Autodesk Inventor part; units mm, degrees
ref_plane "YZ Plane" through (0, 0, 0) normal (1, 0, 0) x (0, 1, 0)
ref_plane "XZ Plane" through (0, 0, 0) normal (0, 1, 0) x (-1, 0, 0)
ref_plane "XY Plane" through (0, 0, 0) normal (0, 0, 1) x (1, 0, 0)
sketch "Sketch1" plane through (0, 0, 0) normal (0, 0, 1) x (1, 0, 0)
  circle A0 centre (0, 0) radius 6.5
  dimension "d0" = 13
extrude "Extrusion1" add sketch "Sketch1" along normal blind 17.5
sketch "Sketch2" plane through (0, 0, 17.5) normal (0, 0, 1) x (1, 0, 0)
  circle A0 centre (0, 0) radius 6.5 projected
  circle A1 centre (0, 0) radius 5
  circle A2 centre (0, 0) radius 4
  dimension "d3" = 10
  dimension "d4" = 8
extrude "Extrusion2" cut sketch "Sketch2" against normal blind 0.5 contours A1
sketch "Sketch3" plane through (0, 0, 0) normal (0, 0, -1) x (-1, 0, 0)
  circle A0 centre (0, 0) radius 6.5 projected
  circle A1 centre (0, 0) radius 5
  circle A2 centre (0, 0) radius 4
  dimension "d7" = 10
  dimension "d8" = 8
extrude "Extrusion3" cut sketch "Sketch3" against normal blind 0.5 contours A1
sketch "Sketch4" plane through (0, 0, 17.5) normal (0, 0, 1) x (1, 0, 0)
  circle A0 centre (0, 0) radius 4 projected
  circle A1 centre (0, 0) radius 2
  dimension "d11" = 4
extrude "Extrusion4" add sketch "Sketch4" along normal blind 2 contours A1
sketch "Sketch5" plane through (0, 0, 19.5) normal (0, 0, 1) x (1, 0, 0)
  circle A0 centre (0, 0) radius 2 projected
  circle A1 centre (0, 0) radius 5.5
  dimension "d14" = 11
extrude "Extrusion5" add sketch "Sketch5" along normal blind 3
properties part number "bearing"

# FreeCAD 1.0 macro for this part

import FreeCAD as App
import Part
import Sketcher

V = App.Vector
Q = App.Units.Quantity

doc = App.newDocument("Part")
body = doc.addObject("PartDesign::Body", "Body")
body.AllowCompound = True

# Sketch on XY plane
sketch1 = body.newObject("Sketcher::SketchObject", "Sketch")
sketch1.AttachmentSupport = (doc.getObject("XY_Plane"), [""])
sketch1.MapMode = "FlatFace"
sketch1.addGeometry(Part.Circle(V(0, 0, 0), V(0, 0, 1), 6), False)
sketch1.addConstraint([
    Sketcher.Constraint("Coincident", 0, 3, -1, 1),
    Sketcher.Constraint("Diameter", 0, Q("13 mm")),
])
pad1 = body.newObject("PartDesign::Pad", "Pad")
pad1.Profile = sketch1
pad1.Length = 17.5

# Sketch on XY plane
sketch2 = body.newObject("Sketcher::SketchObject", "Sketch001")
sketch2.AttachmentSupport = (doc.getObject("XY_Plane"), [""])
sketch2.MapMode = "FlatFace"
sketch2.AttachmentOffset = App.Placement(V(0, 0, 17.5), App.Rotation())
sketch2.addGeometry([
    Part.Circle(V(0, 0, 0), V(0, 0, 1), 5),
    Part.Circle(V(0, 0, 0), V(0, 0, 1), 4),
], False)
sketch2.addConstraint([
    Sketcher.Constraint("Coincident", 0, 3, -1, 1),
    Sketcher.Constraint("Coincident", 1, 3, -1, 1),
    Sketcher.Constraint("Diameter", 0, Q("10 mm")),
    Sketcher.Constraint("Diameter", 1, Q("8 mm")),
])
pocket1 = body.newObject("PartDesign::Pocket", "Pocket")
pocket1.Profile = sketch2
pocket1.Length = 0.5

# Sketch on XY plane
sketch3 = body.newObject("Sketcher::SketchObject", "Sketch002")
sketch3.AttachmentSupport = (doc.getObject("XY_Plane"), [""])
sketch3.MapMode = "FlatFace"
sketch3.addGeometry([
    Part.Circle(V(0, 0, 0), V(0, 0, 1), 5),
    Part.Circle(V(0, 0, 0), V(0, 0, 1), 4),
], False)
sketch3.addConstraint([
    Sketcher.Constraint("Coincident", 0, 3, -1, 1),
    Sketcher.Constraint("Coincident", 1, 3, -1, 1),
    Sketcher.Constraint("Diameter", 0, Q("10 mm")),
    Sketcher.Constraint("Diameter", 1, Q("8 mm")),
])
pocket2 = body.newObject("PartDesign::Pocket", "Pocket001")
pocket2.Profile = sketch3
pocket2.Length = 0.5
pocket2.Reversed = True

# Sketch on XY plane
sketch4 = body.newObject("Sketcher::SketchObject", "Sketch003")
sketch4.AttachmentSupport = (doc.getObject("XY_Plane"), [""])
sketch4.MapMode = "FlatFace"
sketch4.AttachmentOffset = App.Placement(V(0, 0, 17.5), App.Rotation())
sketch4.addGeometry(Part.Circle(V(0, 0, 0), V(0, 0, 1), 2), False)
sketch4.addConstraint([
    Sketcher.Constraint("Coincident", 0, 3, -1, 1),
    Sketcher.Constraint("Diameter", 0, Q("4 mm")),
])
pad2 = body.newObject("PartDesign::Pad", "Pad001")
pad2.Profile = sketch4
pad2.Length = 2

# Sketch on XY plane
sketch5 = body.newObject("Sketcher::SketchObject", "Sketch004")
sketch5.AttachmentSupport = (doc.getObject("XY_Plane"), [""])
sketch5.MapMode = "FlatFace"
sketch5.AttachmentOffset = App.Placement(V(0, 0, 19.5), App.Rotation())
sketch5.addGeometry([
    Part.Circle(V(0, 0, 0), V(0, 0, 1), 5.5),
    Part.Circle(V(0, 0, 0), V(0, 0, 1), 2),
], False)
sketch5.addConstraint([
    Sketcher.Constraint("Coincident", 0, 3, -1, 1),
    Sketcher.Constraint("Coincident", 1, 3, -1, 1),
    Sketcher.Constraint("Diameter", 0, Q("11 mm")),
    Sketcher.Constraint("Diameter", 1, Q("4 mm")),
])
pad3 = body.newObject("PartDesign::Pad", "Pad002")
pad3.Profile = sketch5
pad3.Length = 3

doc.recompute()
